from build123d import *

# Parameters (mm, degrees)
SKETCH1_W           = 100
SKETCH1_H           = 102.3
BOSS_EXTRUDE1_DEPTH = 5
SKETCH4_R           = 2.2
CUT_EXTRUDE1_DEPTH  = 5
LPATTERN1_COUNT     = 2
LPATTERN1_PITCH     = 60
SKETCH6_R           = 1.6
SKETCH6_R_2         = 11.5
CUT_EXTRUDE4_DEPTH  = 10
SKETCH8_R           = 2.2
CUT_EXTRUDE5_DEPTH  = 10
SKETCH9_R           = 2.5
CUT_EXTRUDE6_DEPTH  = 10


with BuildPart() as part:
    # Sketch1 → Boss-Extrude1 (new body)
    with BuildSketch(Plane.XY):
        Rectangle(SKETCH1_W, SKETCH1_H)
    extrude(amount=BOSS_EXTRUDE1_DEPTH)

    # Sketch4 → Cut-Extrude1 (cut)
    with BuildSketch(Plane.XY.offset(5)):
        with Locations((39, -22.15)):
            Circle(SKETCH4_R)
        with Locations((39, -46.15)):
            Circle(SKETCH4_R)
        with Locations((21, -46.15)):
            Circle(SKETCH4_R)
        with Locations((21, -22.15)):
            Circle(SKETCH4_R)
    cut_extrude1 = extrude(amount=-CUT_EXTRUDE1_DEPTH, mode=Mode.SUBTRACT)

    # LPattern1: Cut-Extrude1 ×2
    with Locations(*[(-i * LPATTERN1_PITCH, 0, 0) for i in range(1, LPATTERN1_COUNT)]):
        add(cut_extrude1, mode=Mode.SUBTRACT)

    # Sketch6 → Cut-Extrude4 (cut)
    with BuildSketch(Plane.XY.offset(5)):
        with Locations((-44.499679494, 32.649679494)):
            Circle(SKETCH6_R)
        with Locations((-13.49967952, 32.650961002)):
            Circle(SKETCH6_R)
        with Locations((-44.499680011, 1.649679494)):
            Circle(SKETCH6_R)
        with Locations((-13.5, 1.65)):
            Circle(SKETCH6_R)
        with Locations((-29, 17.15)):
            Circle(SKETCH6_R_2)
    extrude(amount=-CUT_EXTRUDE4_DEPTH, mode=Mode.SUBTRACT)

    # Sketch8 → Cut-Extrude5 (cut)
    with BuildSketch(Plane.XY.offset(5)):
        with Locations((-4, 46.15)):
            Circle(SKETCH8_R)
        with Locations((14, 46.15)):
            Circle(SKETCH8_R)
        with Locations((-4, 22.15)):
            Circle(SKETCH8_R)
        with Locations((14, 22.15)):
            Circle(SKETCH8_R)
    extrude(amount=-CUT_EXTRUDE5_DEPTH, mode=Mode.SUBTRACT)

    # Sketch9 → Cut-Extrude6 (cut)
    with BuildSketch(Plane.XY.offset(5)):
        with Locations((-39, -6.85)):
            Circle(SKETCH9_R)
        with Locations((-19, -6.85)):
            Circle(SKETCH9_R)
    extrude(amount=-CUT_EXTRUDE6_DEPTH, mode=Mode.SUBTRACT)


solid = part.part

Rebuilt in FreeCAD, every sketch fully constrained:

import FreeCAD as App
import Part
import Sketcher

V = App.Vector
Q = App.Units.Quantity


def add_polygon(sketch, points):
    """Adds a closed chain of lines whose ends are joined by coincident constraints."""
    first, n = sketch.GeometryCount, len(points)
    for a, b in zip(points, points[1:] + points[:1]):
        sketch.addGeometry(Part.LineSegment(App.Vector(*a, 0), App.Vector(*b, 0)), False)
    for i in range(n):
        sketch.addConstraint(Sketcher.Constraint("Coincident", first + i, 2, first + (i + 1) % n, 1))

doc = App.newDocument("Part")
body = doc.addObject("PartDesign::Body", "Body")

# Sketch on XY plane
sketch1 = body.newObject("Sketcher::SketchObject", "Sketch")
sketch1.AttachmentSupport = (doc.getObject("XY_Plane"), [""])
sketch1.MapMode = "FlatFace"
add_polygon(sketch1, [(-50, 51), (-50, -51), (50, -51), (50, 51)])  # lines 0-3
sketch1.addConstraint([
    Sketcher.Constraint("Vertical", 0),
    Sketcher.Constraint("Horizontal", 1),
    Sketcher.Constraint("Vertical", 2),
    Sketcher.Constraint("Horizontal", 3),
    Sketcher.Constraint("Symmetric", 0, 2, 2, 2, -1, 1),
    Sketcher.Constraint("DistanceX", 1, 1, 1, 2, Q("100 mm")),
    Sketcher.Constraint("DistanceY", 0, 2, 0, 1, Q("102.3 mm")),
])
pad1 = body.newObject("PartDesign::Pad", "Pad")
pad1.Profile = sketch1
pad1.Length = 5

# Sketch on XY plane
sketch2 = body.newObject("Sketcher::SketchObject", "Sketch001")
sketch2.AttachmentSupport = (doc.getObject("XY_Plane"), [""])
sketch2.MapMode = "FlatFace"
sketch2.AttachmentOffset = App.Placement(V(0, 0, 5), App.Rotation())
sketch2.addGeometry([
    Part.Circle(V(39, -22.1, 0), V(0, 0, 1), 2.2),
    Part.Circle(V(39, -46.1, 0), V(0, 0, 1), 2.2),
    Part.Circle(V(21, -46.1, 0), V(0, 0, 1), 2.2),
    Part.Circle(V(21, -22.1, 0), V(0, 0, 1), 2.2),
], False)
sketch2.addConstraint([
    Sketcher.Constraint("Equal", 0, 1),
    Sketcher.Constraint("Equal", 1, 2),
    Sketcher.Constraint("Equal", 2, 3),
    Sketcher.Constraint("Horizontal", 1, 3, 2, 3),
    Sketcher.Constraint("Horizontal", 0, 3, 3, 3),
    Sketcher.Constraint("Vertical", 0, 3, 1, 3),
    Sketcher.Constraint("Vertical", 2, 3, 3, 3),
    Sketcher.Constraint("Diameter", 0, Q("4.4 mm")),
    Sketcher.Constraint("DistanceX", -1, 1, 0, 3, Q("39 mm")),
    Sketcher.Constraint("DistanceX", -1, 1, 2, 3, Q("21 mm")),
    Sketcher.Constraint("DistanceY", 1, 3, 0, 3, Q("24 mm")),
    Sketcher.Constraint("DistanceY", 0, 3, -1, 1, Q("22.15 mm")),
])
pocket1 = body.newObject("PartDesign::Pocket", "Pocket")
pocket1.Profile = sketch2
pocket1.Length = 5
doc.recompute()

linearpattern = body.newObject("PartDesign::LinearPattern", "LinearPattern")
linearpattern.Originals = [pocket1]
linearpattern.Direction = (doc.getObject("X_Axis"), [""])
linearpattern.Mode = "offset"
linearpattern.Offset = 60
linearpattern.Occurrences = 2
linearpattern.Reversed = True
body.Tip = linearpattern

# Sketch on XY plane
sketch3 = body.newObject("Sketcher::SketchObject", "Sketch002")
sketch3.AttachmentSupport = (doc.getObject("XY_Plane"), [""])
sketch3.MapMode = "FlatFace"
sketch3.AttachmentOffset = App.Placement(V(0, 0, 5), App.Rotation())
sketch3.addGeometry([
    Part.Circle(V(-44.5, 32.6, 0), V(0, 0, 1), 1.6),  # 0
    Part.Circle(V(-13.5, 32.7, 0), V(0, 0, 1), 1.6),  # 1
    Part.Circle(V(-44.5, 1.6, 0), V(0, 0, 1), 1.6),  # 2
    Part.Circle(V(-13.5, 1.6, 0), V(0, 0, 1), 1.6),  # 3
    Part.Circle(V(-29, 17.1, 0), V(0, 0, 1), 11.5),  # 4
], False)
sketch3.addConstraint([
    Sketcher.Constraint("Equal", 0, 1),
    Sketcher.Constraint("Equal", 1, 2),
    Sketcher.Constraint("Equal", 2, 3),
    Sketcher.Constraint("Vertical", 0, 3, 2, 3),
    Sketcher.Constraint("Diameter", 4, Q("23 mm")),
    Sketcher.Constraint("Diameter", 0, Q("3.2 mm")),
    Sketcher.Constraint("DistanceX", 4, 3, -1, 1, Q("29 mm")),
    Sketcher.Constraint("DistanceX", 0, 3, 1, 3, Q("31 mm")),
    Sketcher.Constraint("DistanceY", 2, 3, 0, 3, Q("31 mm")),
    Sketcher.Constraint("DistanceX", 3, 3, -1, 1, Q("13.5 mm")),
    Sketcher.Constraint("DistanceY", 3, 3, 4, 3, Q("15.5 mm")),
    Sketcher.Constraint("DistanceY", -1, 1, 3, 3, Q("1.65 mm")),
    Sketcher.Constraint("DistanceX", 0, 3, -1, 1, Q("44.499679 mm")),
    Sketcher.Constraint("DistanceY", -1, 1, 0, 3, Q("32.649679 mm")),
    Sketcher.Constraint("DistanceY", -1, 1, 1, 3, Q("32.650961 mm")),
])
pocket2 = body.newObject("PartDesign::Pocket", "Pocket001")
pocket2.Profile = sketch3
pocket2.Length = 10

# Sketch on XY plane
sketch4 = body.newObject("Sketcher::SketchObject", "Sketch003")
sketch4.AttachmentSupport = (doc.getObject("XY_Plane"), [""])
sketch4.MapMode = "FlatFace"
sketch4.AttachmentOffset = App.Placement(V(0, 0, 5), App.Rotation())
sketch4.addGeometry([
    Part.Circle(V(-4, 46.1, 0), V(0, 0, 1), 2.2),
    Part.Circle(V(14, 46.1, 0), V(0, 0, 1), 2.2),
    Part.Circle(V(-4, 22.1, 0), V(0, 0, 1), 2.2),
    Part.Circle(V(14, 22.1, 0), V(0, 0, 1), 2.2),
], False)
sketch4.addConstraint([
    Sketcher.Constraint("Equal", 0, 1),
    Sketcher.Constraint("Equal", 1, 2),
    Sketcher.Constraint("Equal", 2, 3),
    Sketcher.Constraint("Horizontal", 0, 3, 1, 3),
    Sketcher.Constraint("Horizontal", 2, 3, 3, 3),
    Sketcher.Constraint("Vertical", 0, 3, 2, 3),
    Sketcher.Constraint("Vertical", 1, 3, 3, 3),
    Sketcher.Constraint("Diameter", 0, Q("4.4 mm")),
    Sketcher.Constraint("DistanceX", 0, 3, -1, 1, Q("4 mm")),
    Sketcher.Constraint("DistanceX", -1, 1, 1, 3, Q("14 mm")),
    Sketcher.Constraint("DistanceY", 2, 3, 0, 3, Q("24 mm")),
    Sketcher.Constraint("DistanceY", -1, 1, 0, 3, Q("46.15 mm")),
])
pocket3 = body.newObject("PartDesign::Pocket", "Pocket002")
pocket3.Profile = sketch4
pocket3.Length = 10

# Sketch on XY plane
sketch5 = body.newObject("Sketcher::SketchObject", "Sketch004")
sketch5.AttachmentSupport = (doc.getObject("XY_Plane"), [""])
sketch5.MapMode = "FlatFace"
sketch5.AttachmentOffset = App.Placement(V(0, 0, 5), App.Rotation())
sketch5.addGeometry([
    Part.Circle(V(-39, -6.8, 0), V(0, 0, 1), 2.5),
    Part.Circle(V(-19, -6.8, 0), V(0, 0, 1), 2.5),
], False)
sketch5.addConstraint([
    Sketcher.Constraint("Equal", 0, 1),
    Sketcher.Constraint("Horizontal", 0, 3, 1, 3),
    Sketcher.Constraint("Diameter", 0, Q("5 mm")),
    Sketcher.Constraint("DistanceX", 0, 3, -1, 1, Q("39 mm")),
    Sketcher.Constraint("DistanceX", 1, 3, -1, 1, Q("19 mm")),
    Sketcher.Constraint("DistanceY", 0, 3, -1, 1, Q("6.85 mm")),
])
pocket4 = body.newObject("PartDesign::Pocket", "Pocket003")
pocket4.Profile = sketch5
pocket4.Length = 10

doc.recompute()
